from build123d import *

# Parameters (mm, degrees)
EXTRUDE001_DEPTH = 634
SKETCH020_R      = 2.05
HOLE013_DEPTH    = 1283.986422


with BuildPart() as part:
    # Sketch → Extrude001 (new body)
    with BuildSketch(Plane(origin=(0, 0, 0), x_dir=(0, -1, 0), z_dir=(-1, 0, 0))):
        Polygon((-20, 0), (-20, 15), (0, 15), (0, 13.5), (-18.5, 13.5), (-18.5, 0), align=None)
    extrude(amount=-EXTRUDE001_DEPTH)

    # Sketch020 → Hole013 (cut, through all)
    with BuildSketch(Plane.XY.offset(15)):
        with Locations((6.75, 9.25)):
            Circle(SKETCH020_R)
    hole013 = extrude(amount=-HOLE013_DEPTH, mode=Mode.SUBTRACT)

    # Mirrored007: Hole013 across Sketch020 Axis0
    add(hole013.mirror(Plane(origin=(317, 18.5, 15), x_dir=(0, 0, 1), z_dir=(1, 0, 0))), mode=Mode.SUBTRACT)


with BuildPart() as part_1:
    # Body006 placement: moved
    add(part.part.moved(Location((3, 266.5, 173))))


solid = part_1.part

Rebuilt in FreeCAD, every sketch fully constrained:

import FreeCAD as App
import Part
import Sketcher
from FreeCAD import Vector

doc = App.newDocument("Part")
body = doc.addObject("PartDesign::Body", "Body")

# Sketch on YZ plane
sketch1 = body.newObject("Sketcher::SketchObject", "Sketch")
sketch1.AttachmentSupport = (doc.getObject("YZ_Plane"), [""])
sketch1.MapMode = "FlatFace"
sketch1.addGeometry([
    Part.LineSegment(Vector(20, 15, 0), Vector(20, 0, 0)),  # 0
    Part.LineSegment(Vector(20, 0, 0), Vector(18.5, 0, 0)),  # 1
    Part.LineSegment(Vector(18.5, 0, 0), Vector(18.5, 13.5, 0)),  # 2
    Part.LineSegment(Vector(18.5, 13.5, 0), Vector(0, 13.5, 0)),  # 3
    Part.LineSegment(Vector(0, 13.5, 0), Vector(0, 15, 0)),  # 4
    Part.LineSegment(Vector(0, 15, 0), Vector(20, 15, 0)),  # 5
], False)
sketch1.addConstraint([
    Sketcher.Constraint("Coincident", 0, 2, 1, 1),
    Sketcher.Constraint("Coincident", 1, 2, 2, 1),
    Sketcher.Constraint("Coincident", 2, 2, 3, 1),
    Sketcher.Constraint("Coincident", 3, 2, 4, 1),
    Sketcher.Constraint("Coincident", 4, 2, 5, 1),
    Sketcher.Constraint("Coincident", 5, 2, 0, 1),
    Sketcher.Constraint("Vertical", 0),
    Sketcher.Constraint("Horizontal", 1),
    Sketcher.Constraint("Vertical", 2),
    Sketcher.Constraint("Horizontal", 3),
    Sketcher.Constraint("Vertical", 4),
    Sketcher.Constraint("Horizontal", 5),
    Sketcher.Constraint("PointOnObject", 0, 2, -1),
    Sketcher.Constraint("PointOnObject", 3, 2, -2),
    Sketcher.Constraint("Equal", 1, 4),
    Sketcher.Constraint("DistanceX", 5, 1, 5, 2, 20.0),
    Sketcher.Constraint("DistanceY", 0, 2, 0, 1, 15.0),
    Sketcher.Constraint("DistanceX", 1, 2, 1, 1, 1.5),
])
pad1 = body.newObject("PartDesign::Pad", "Pad")
pad1.Profile = sketch1
pad1.Length = 634

# Sketch on XY plane
sketch2 = body.newObject("Sketcher::SketchObject", "Sketch001")
sketch2.AttachmentSupport = (doc.getObject("XY_Plane"), [""])
sketch2.MapMode = "FlatFace"
sketch2.AttachmentOffset = App.Placement(Vector(0, 0, 15), App.Rotation())
sketch2.addGeometry(Part.Circle(Vector(6.8, 9.2, 0), Vector(0, 0, 1), 2), False)
sketch2.addConstraint([
    Sketcher.Constraint("Diameter", 0, 4.1),
    Sketcher.Constraint("DistanceX", -1, 1, 0, 3, 6.75),
    Sketcher.Constraint("DistanceY", -1, 1, 0, 3, 9.25),
])
pocket1 = body.newObject("PartDesign::Pocket", "Pocket")
pocket1.Profile = sketch2
pocket1.Type = "ThroughAll"
doc.recompute()

datumplane = body.newObject("PartDesign::Plane", "DatumPlane")
datumplane.AttachmentSupport = (doc.getObject("YZ_Plane"), [""])
datumplane.MapMode = "FlatFace"
datumplane.AttachmentOffset = App.Placement(Vector(0, 0, 317), App.Rotation())
mirrored = body.newObject("PartDesign::Mirrored", "Mirrored")
mirrored.Originals = [pocket1]
mirrored.MirrorPlane = (datumplane, [""])
body.Tip = mirrored
body2 = doc.addObject("PartDesign::Body", "Body001")
doc.recompute()

body.Placement = App.Placement(Vector(3, 266.5, 173), App.Rotation(Vector(0, 0, 1), 0))
boolean = body2.newObject("PartDesign::Boolean", "Boolean")
boolean.Type = "Fuse"
boolean.addObjects([body])

doc.recompute()
